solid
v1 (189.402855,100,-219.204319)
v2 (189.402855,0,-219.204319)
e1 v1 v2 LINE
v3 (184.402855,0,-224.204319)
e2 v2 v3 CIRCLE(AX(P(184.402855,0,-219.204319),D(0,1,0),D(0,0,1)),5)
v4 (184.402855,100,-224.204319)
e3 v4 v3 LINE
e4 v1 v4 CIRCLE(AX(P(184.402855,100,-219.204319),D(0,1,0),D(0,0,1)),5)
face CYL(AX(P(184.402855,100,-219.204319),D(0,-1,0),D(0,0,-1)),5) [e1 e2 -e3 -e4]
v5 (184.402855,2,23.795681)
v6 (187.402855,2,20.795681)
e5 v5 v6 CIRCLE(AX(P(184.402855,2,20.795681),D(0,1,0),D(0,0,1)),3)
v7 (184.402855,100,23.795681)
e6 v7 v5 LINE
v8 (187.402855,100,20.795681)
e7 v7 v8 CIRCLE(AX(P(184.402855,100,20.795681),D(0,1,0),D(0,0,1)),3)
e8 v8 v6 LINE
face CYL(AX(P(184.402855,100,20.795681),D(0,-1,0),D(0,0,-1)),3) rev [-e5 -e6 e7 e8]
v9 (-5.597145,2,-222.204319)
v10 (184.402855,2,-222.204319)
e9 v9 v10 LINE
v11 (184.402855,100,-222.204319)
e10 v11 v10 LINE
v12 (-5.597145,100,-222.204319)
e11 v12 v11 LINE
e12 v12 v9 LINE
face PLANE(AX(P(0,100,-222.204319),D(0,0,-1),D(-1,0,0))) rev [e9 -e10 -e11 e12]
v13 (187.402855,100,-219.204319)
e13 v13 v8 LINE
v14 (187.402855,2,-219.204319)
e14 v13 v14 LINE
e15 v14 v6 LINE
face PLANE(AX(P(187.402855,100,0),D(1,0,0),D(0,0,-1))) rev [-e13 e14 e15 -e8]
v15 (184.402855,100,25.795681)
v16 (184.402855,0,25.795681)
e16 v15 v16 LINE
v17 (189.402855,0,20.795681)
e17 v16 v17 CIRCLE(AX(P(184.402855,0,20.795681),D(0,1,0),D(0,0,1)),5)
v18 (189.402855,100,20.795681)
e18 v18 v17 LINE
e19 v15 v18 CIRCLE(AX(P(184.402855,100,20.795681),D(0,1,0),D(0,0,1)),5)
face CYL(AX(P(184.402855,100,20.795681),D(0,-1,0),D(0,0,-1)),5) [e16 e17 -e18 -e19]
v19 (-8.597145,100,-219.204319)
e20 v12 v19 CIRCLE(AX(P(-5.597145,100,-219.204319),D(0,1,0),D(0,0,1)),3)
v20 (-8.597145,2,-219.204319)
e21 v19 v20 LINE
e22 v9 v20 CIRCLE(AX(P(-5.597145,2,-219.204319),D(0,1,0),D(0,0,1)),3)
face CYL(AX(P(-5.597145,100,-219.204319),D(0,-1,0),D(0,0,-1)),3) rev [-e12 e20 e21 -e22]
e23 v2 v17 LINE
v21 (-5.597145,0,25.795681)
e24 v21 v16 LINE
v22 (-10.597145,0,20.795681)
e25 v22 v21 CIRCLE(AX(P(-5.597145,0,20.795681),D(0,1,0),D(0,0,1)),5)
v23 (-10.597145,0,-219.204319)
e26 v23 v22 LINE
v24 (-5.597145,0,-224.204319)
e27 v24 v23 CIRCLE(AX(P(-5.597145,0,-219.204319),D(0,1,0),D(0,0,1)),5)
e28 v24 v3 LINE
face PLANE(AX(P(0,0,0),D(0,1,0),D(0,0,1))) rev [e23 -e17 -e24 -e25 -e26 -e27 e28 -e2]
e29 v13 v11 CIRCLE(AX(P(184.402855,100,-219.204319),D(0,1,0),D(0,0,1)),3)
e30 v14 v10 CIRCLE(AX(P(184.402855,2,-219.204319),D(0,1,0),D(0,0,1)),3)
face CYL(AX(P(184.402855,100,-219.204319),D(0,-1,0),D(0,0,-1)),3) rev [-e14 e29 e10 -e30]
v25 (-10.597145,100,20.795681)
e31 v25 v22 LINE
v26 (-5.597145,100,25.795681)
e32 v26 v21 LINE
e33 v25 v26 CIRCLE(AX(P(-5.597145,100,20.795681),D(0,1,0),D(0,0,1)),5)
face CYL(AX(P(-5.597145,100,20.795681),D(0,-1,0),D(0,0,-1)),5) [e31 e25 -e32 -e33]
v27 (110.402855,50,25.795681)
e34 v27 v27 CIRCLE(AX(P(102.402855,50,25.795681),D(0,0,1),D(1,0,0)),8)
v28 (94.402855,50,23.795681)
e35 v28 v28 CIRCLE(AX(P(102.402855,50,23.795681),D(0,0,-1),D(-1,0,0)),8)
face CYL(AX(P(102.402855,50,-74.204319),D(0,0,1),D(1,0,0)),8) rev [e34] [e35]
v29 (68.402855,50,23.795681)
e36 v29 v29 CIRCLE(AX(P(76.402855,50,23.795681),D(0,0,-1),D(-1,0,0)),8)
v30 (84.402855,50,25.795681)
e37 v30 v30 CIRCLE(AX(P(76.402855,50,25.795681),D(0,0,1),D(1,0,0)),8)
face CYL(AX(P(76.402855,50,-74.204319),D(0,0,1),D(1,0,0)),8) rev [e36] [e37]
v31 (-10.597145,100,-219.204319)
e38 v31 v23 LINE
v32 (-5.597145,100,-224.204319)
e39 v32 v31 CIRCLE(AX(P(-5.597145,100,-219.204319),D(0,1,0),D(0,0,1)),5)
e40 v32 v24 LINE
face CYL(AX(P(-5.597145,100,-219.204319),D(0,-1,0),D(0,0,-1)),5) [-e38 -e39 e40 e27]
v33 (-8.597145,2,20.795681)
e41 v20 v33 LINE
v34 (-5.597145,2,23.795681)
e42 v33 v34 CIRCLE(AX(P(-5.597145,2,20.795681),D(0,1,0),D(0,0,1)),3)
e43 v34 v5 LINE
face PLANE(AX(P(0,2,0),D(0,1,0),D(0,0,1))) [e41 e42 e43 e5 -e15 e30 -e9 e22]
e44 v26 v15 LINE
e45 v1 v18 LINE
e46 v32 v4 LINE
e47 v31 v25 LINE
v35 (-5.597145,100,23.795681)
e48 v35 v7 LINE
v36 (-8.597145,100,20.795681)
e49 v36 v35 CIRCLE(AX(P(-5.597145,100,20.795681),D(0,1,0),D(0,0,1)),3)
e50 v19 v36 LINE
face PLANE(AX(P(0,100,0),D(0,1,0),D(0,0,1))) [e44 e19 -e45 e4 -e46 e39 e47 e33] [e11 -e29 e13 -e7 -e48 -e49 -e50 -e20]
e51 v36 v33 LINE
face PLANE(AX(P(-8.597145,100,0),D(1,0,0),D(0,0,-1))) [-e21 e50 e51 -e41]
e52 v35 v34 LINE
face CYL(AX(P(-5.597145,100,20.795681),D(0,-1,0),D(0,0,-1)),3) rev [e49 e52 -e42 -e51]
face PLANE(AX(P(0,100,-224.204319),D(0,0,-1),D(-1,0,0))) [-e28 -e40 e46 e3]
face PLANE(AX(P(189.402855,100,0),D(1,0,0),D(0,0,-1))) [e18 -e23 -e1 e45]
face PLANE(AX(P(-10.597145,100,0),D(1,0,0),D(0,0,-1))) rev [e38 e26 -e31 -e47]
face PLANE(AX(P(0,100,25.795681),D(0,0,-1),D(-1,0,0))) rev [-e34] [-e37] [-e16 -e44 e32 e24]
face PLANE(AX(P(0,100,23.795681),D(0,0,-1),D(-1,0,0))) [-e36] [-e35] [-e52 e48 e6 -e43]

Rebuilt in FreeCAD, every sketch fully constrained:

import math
import FreeCAD as App
import Part
import Sketcher


def faces_at(feature, points):
    """Names of the faces that lie closest to the given points."""
    faces = feature.Shape.Faces
    near = lambda p: min(range(len(faces)), key=lambda i: faces[i].distToShape(Part.Vertex(*p))[0])
    return sorted({f"Face{near(p) + 1}" for p in points})

doc = App.newDocument("Part")
params = doc.addObject("Spreadsheet::Sheet", "Params")
for row, (alias, value) in enumerate([
    ("sketch1_radius", "5 mm"),
    ("sketch1_width", "190 mm"),
    ("sketch1_height", "240 mm"),
    ("pad1_length", "100 mm"),
    ("thickness_wall", "2 mm"),
    ("sketch2_diameter", "16 mm"),
    ("pocket1_length", "100 mm"),
], start=1):
    params.set(f"A{row}", alias)
    params.set(f"B{row}", "=" + value)
    params.setAlias(f"B{row}", alias)

body = doc.addObject("PartDesign::Body", "Body")

# Sketch on XZ plane
sketch1 = body.newObject("Sketcher::SketchObject", "Sketch")
sketch1.AttachmentSupport = (doc.getObject("XZ_Plane"), [""])
sketch1.MapMode = "FlatFace"
sketch1.addGeometry(Part.LineSegment(App.Vector(184, -224, 0), App.Vector(-6, -224, 0)), False)
sketch1.addGeometry(Part.ArcOfCircle(Part.Circle(App.Vector(-6, -219, 0), App.Vector(0, 0, 1), 5), math.radians(180), math.radians(270)), False)
sketch1.addGeometry(Part.LineSegment(App.Vector(-11, -219, 0), App.Vector(-11, 21, 0)), False)
sketch1.addGeometry(Part.ArcOfCircle(Part.Circle(App.Vector(-6, 21, 0), App.Vector(0, 0, 1), 5), math.radians(90), math.radians(180)), False)
sketch1.addGeometry(Part.LineSegment(App.Vector(-6, 26, 0), App.Vector(184, 26, 0)), False)
sketch1.addGeometry(Part.ArcOfCircle(Part.Circle(App.Vector(184, 21, 0), App.Vector(0, 0, 1), 5), math.radians(0), math.radians(90)), False)
sketch1.addGeometry(Part.LineSegment(App.Vector(189, 21, 0), App.Vector(189, -219, 0)), False)
sketch1.addGeometry(Part.ArcOfCircle(Part.Circle(App.Vector(184, -219, 0), App.Vector(0, 0, 1), 5), math.radians(-90), math.radians(0)), False)
sketch1.addConstraint(Sketcher.Constraint("Tangent", 0, 2, 1, 2))
sketch1.addConstraint(Sketcher.Constraint("Tangent", 1, 1, 2, 1))
sketch1.addConstraint(Sketcher.Constraint("Tangent", 2, 2, 3, 2))
sketch1.addConstraint(Sketcher.Constraint("Tangent", 3, 1, 4, 1))
sketch1.addConstraint(Sketcher.Constraint("Tangent", 4, 2, 5, 2))
sketch1.addConstraint(Sketcher.Constraint("Tangent", 5, 1, 6, 1))
sketch1.addConstraint(Sketcher.Constraint("Tangent", 6, 2, 7, 2))
sketch1.addConstraint(Sketcher.Constraint("Tangent", 7, 1, 0, 1))
sketch1.addConstraint(Sketcher.Constraint("Horizontal", 0))
sketch1.addConstraint(Sketcher.Constraint("Vertical", 2))
sketch1.addConstraint(Sketcher.Constraint("Horizontal", 4))
sketch1.addConstraint(Sketcher.Constraint("Vertical", 6))
sketch1.addConstraint(Sketcher.Constraint("Equal", 1, 3))
sketch1.addConstraint(Sketcher.Constraint("Equal", 3, 5))
sketch1.addConstraint(Sketcher.Constraint("Equal", 5, 7))
sketch1.addConstraint(Sketcher.Constraint("Radius", 1, 5.0))
sketch1.addConstraint(Sketcher.Constraint("DistanceX", 0, 2, 0, 1, 190.0))
sketch1.addConstraint(Sketcher.Constraint("DistanceY", 2, 1, 2, 2, 240.0))
sketch1.addConstraint(Sketcher.Constraint("DistanceY", 1, 3, -1, 1, 219.204319))
sketch1.addConstraint(Sketcher.Constraint("DistanceX", 1, 3, -1, 1, 5.597145))
sketch1.setExpression("Constraints[15]", "Params.sketch1_radius")
sketch1.setExpression("Constraints[16]", "Params.sketch1_width")
sketch1.setExpression("Constraints[17]", "Params.sketch1_height")
pad1 = body.newObject("PartDesign::Pad", "Pad")
pad1.Profile = sketch1
pad1.setExpression("Length", "Params.pad1_length")
pad1.Reversed = True
doc.recompute()

thickness = body.newObject("PartDesign::Thickness", "Thickness")
thickness.Base = (pad1, faces_at(pad1, [(89.403, 100, -99.204)]))
thickness.setExpression("Value", "Params.thickness_wall")
thickness.Reversed = True
thickness.Join = "Intersection"

# Sketch on XY plane
sketch2 = body.newObject("Sketcher::SketchObject", "Sketch001")
sketch2.AttachmentSupport = (doc.getObject("XY_Plane"), [""])
sketch2.MapMode = "FlatFace"
sketch2.AttachmentOffset = App.Placement(App.Vector(0, 0, 25.795681), App.Rotation())
sketch2.addGeometry(Part.Circle(App.Vector(76, 50, 0), App.Vector(0, 0, 1), 8), False)
sketch2.addGeometry(Part.Circle(App.Vector(102, 50, 0), App.Vector(0, 0, 1), 8), False)
sketch2.addConstraint(Sketcher.Constraint("Equal", 0, 1))
sketch2.addConstraint(Sketcher.Constraint("Horizontal", 0, 3, 1, 3))
sketch2.addConstraint(Sketcher.Constraint("Diameter", 0, 16.0))
sketch2.addConstraint(Sketcher.Constraint("DistanceY", -1, 1, 0, 3, 50.0))
sketch2.addConstraint(Sketcher.Constraint("DistanceX", 0, 3, 1, 3, 26.0))
sketch2.addConstraint(Sketcher.Constraint("DistanceX", -1, 1, 0, 3, 76.402855))
sketch2.setExpression("Constraints[2]", "Params.sketch2_diameter")
pocket1 = body.newObject("PartDesign::Pocket", "Pocket")
pocket1.Profile = sketch2
pocket1.setExpression("Length", "Params.pocket1_length")

doc.recompute()
